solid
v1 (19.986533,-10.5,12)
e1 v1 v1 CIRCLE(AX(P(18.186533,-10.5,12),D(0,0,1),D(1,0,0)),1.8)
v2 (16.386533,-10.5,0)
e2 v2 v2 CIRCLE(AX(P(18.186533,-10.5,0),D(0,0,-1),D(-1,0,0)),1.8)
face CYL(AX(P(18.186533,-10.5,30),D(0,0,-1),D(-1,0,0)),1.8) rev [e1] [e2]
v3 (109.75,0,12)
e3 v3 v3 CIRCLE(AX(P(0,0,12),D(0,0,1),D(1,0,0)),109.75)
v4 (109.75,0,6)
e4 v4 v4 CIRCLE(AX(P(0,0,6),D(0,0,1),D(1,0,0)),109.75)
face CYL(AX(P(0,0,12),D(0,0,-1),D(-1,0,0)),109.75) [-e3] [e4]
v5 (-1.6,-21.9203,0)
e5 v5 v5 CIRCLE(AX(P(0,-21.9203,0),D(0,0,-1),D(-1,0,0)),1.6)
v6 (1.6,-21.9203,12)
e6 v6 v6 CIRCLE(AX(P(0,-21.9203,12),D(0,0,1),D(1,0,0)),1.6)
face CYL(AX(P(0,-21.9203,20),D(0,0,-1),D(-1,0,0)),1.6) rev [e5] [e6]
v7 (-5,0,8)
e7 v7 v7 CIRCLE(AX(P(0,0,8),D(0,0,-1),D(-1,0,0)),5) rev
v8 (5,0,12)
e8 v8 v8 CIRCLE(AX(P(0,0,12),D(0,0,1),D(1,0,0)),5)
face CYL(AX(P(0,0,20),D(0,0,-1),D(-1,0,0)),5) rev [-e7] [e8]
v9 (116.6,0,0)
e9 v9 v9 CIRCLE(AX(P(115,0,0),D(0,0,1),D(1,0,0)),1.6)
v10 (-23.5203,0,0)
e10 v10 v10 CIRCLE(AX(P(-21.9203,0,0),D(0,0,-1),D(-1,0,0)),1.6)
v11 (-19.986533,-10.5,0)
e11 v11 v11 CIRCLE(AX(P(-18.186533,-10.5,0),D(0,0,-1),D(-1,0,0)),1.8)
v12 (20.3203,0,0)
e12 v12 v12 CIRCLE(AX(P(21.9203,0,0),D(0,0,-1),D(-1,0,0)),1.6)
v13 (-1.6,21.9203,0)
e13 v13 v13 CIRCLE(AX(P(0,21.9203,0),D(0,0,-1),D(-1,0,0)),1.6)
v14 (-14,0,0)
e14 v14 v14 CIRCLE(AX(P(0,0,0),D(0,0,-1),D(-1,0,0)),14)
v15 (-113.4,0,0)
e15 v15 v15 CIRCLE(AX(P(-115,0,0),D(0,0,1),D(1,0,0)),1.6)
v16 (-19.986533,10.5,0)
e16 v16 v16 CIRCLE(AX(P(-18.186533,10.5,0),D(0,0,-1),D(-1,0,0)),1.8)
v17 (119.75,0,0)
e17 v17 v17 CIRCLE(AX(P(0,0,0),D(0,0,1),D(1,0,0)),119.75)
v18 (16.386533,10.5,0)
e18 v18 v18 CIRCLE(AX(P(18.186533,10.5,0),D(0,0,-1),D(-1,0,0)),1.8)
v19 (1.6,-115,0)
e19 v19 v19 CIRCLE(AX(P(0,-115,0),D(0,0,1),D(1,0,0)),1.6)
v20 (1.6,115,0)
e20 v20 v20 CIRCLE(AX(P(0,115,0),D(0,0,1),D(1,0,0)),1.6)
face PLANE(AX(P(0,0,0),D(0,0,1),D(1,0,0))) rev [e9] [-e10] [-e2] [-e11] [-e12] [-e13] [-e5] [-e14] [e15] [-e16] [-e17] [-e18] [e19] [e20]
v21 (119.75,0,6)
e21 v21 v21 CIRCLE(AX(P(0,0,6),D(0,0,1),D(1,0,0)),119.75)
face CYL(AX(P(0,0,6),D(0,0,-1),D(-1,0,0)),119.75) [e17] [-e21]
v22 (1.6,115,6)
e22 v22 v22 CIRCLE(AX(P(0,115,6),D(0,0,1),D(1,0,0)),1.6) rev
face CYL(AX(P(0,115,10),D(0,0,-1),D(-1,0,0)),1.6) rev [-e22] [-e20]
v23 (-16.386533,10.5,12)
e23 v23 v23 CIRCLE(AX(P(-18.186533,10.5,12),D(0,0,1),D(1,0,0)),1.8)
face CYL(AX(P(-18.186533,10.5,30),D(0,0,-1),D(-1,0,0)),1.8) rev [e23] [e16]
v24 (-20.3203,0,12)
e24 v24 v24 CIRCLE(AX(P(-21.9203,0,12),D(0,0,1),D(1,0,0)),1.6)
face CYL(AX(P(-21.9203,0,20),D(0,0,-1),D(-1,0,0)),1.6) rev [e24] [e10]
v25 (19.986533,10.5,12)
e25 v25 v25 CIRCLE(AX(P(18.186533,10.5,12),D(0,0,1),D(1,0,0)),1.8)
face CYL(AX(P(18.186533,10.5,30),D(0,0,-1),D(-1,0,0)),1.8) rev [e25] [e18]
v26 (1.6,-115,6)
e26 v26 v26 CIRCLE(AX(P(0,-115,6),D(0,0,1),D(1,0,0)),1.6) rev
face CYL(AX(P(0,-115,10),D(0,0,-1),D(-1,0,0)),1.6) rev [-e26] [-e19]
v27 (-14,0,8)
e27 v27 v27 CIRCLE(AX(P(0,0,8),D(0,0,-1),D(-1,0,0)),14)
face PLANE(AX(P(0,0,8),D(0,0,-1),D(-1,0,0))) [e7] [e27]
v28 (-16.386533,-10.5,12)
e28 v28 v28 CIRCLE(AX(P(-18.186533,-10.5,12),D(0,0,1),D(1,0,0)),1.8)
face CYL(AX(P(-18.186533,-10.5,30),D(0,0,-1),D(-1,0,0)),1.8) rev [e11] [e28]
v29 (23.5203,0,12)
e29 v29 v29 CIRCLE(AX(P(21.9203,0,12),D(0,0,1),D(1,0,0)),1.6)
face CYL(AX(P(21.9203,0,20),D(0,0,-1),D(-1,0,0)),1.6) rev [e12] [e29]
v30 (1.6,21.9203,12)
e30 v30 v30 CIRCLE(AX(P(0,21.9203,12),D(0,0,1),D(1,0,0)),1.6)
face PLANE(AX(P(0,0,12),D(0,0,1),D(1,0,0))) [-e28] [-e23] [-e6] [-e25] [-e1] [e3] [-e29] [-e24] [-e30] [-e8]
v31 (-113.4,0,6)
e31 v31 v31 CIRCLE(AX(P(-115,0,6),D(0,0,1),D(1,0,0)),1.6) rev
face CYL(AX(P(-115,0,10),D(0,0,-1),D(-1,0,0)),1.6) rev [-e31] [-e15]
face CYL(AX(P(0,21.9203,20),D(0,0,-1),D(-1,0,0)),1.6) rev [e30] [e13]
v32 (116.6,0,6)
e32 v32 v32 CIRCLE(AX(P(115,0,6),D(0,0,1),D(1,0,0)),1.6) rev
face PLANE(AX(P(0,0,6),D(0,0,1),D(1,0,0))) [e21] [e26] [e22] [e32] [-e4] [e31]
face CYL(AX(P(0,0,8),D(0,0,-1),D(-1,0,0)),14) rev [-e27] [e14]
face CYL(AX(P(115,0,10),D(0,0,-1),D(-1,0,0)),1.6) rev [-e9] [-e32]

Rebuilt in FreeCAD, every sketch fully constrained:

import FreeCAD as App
import Part
import Sketcher

V = App.Vector

doc = App.newDocument("Part")
body = doc.addObject("PartDesign::Body", "Body")

# Sketch on XY plane
sketch1 = doc.addObject("Sketcher::SketchObject", "Sketch")
body.addObject(sketch1)
sketch1.AttachmentSupport = (doc.XY_Plane, [""])
sketch1.MapMode = "FlatFace"
sketch1.addGeometry(Part.Circle(V(0, 0, 0), V(0, 0, 1), 110), False)
sketch1.addConstraint([
    Sketcher.Constraint("Coincident", 0, 3, -1, 1),
    Sketcher.Constraint("Diameter", 0, 219.5),
])
pad1 = doc.addObject("PartDesign::Pad", "Pad")
body.addObject(pad1)
pad1.Profile = sketch1
pad1.Length = 12

# Sketch on XY plane
sketch2 = doc.addObject("Sketcher::SketchObject", "Sketch001")
body.addObject(sketch2)
sketch2.AttachmentSupport = (doc.XY_Plane, [""])
sketch2.MapMode = "FlatFace"
sketch2.addGeometry(Part.Circle(V(0, 0, 0), V(0, 0, 1), 120), False)
sketch2.addConstraint([
    Sketcher.Constraint("Coincident", 0, 3, -1, 1),
    Sketcher.Constraint("Diameter", 0, 239.5),
])
pad2 = doc.addObject("PartDesign::Pad", "Pad001")
body.addObject(pad2)
pad2.Profile = sketch2
pad2.Length = 6

# Sketch on XY plane
sketch3 = doc.addObject("Sketcher::SketchObject", "Sketch002")
body.addObject(sketch3)
sketch3.AttachmentSupport = (doc.XY_Plane, [""])
sketch3.MapMode = "FlatFace"
sketch3.addGeometry([
    Part.Circle(V(-115, 0, 0), V(0, 0, 1), 1.6),
    Part.Circle(V(115, 0, 0), V(0, 0, 1), 1.6),
    Part.Circle(V(0, -115, 0), V(0, 0, 1), 1.6),
    Part.Circle(V(0, 115, 0), V(0, 0, 1), 1.6),
], False)
sketch3.addConstraint([
    Sketcher.Constraint("Equal", 0, 1),
    Sketcher.Constraint("Equal", 1, 2),
    Sketcher.Constraint("Equal", 2, 3),
    Sketcher.Constraint("Symmetric", 0, 3, 1, 3, -1, 1),
    Sketcher.Constraint("Symmetric", 2, 3, 3, 3, -1, 1),
    Sketcher.Constraint("PointOnObject", 0, 3, -1),
    Sketcher.Constraint("PointOnObject", 2, 3, -2),
    Sketcher.Constraint("Diameter", 0, 3.2),
    Sketcher.Constraint("DistanceX", 0, 3, -1, 1, 115.0),
    Sketcher.Constraint("DistanceY", 2, 3, -1, 1, 115.0),
])
pocket1 = doc.addObject("PartDesign::Pocket", "Pocket")
body.addObject(pocket1)
pocket1.Profile = sketch3
pocket1.Length = 10
pocket1.Reversed = True

# Sketch on XY plane
sketch4 = doc.addObject("Sketcher::SketchObject", "Sketch003")
body.addObject(sketch4)
sketch4.AttachmentSupport = (doc.XY_Plane, [""])
sketch4.MapMode = "FlatFace"
sketch4.addGeometry(Part.Circle(V(0, -21.9, 0), V(0, 0, 1), 1.6), False)
sketch4.addConstraint([
    Sketcher.Constraint("PointOnObject", 0, 3, -2),
    Sketcher.Constraint("Diameter", 0, 3.2),
    Sketcher.Constraint("DistanceY", 0, 3, -1, 1, 21.9203),
])
pocket2 = doc.addObject("PartDesign::Pocket", "Pocket001")
body.addObject(pocket2)
pocket2.Profile = sketch4
pocket2.Length = 20
pocket2.Reversed = True

# Sketch on XY plane
sketch5 = doc.addObject("Sketcher::SketchObject", "Sketch004")
body.addObject(sketch5)
sketch5.AttachmentSupport = (doc.XY_Plane, [""])
sketch5.MapMode = "FlatFace"
sketch5.addGeometry([
    Part.Circle(V(21.9, 0, 0), V(0, 0, 1), 1.6),
    Part.Circle(V(0, 21.9, 0), V(0, 0, 1), 1.6),
    Part.Circle(V(-21.9, 0, 0), V(0, 0, 1), 1.6),
    Part.Circle(V(0, -21.9, 0), V(0, 0, 1), 1.6),
], False)
sketch5.addConstraint([
    Sketcher.Constraint("Equal", 0, 1),
    Sketcher.Constraint("Equal", 1, 2),
    Sketcher.Constraint("Equal", 2, 3),
    Sketcher.Constraint("Symmetric", 0, 3, 2, 3, -1, 1),
    Sketcher.Constraint("Symmetric", 1, 3, 3, 3, -1, 1),
    Sketcher.Constraint("PointOnObject", 0, 3, -1),
    Sketcher.Constraint("PointOnObject", 1, 3, -2),
    Sketcher.Constraint("Diameter", 0, 3.2),
    Sketcher.Constraint("DistanceX", -1, 1, 0, 3, 21.9203),
    Sketcher.Constraint("DistanceY", -1, 1, 1, 3, 21.9203),
])
pocket3 = doc.addObject("PartDesign::Pocket", "Pocket002")
body.addObject(pocket3)
pocket3.Profile = sketch5
pocket3.Length = 20
pocket3.Reversed = True

# Sketch on XY plane
sketch6 = doc.addObject("Sketcher::SketchObject", "Sketch005")
body.addObject(sketch6)
sketch6.AttachmentSupport = (doc.XY_Plane, [""])
sketch6.MapMode = "FlatFace"
sketch6.addGeometry(Part.Circle(V(0, 0, 0), V(0, 0, 1), 5), False)
sketch6.addConstraint([
    Sketcher.Constraint("Coincident", 0, 3, -1, 1),
    Sketcher.Constraint("Diameter", 0, 10.0),
])
pocket4 = doc.addObject("PartDesign::Pocket", "Pocket003")
body.addObject(pocket4)
pocket4.Profile = sketch6
pocket4.Length = 20
pocket4.Reversed = True

# Sketch on XY plane
sketch7 = doc.addObject("Sketcher::SketchObject", "Sketch006")
body.addObject(sketch7)
sketch7.AttachmentSupport = (doc.XY_Plane, [""])
sketch7.MapMode = "FlatFace"
sketch7.addGeometry([
    Part.Circle(V(18.2, 10.5, 0), V(0, 0, 1), 1.8),
    Part.Circle(V(-18.2, 10.5, 0), V(0, 0, 1), 1.8),
    Part.Circle(V(-18.2, -10.5, 0), V(0, 0, 1), 1.8),
    Part.Circle(V(18.2, -10.5, 0), V(0, 0, 1), 1.8),
], False)
sketch7.addConstraint([
    Sketcher.Constraint("Equal", 0, 1),
    Sketcher.Constraint("Equal", 1, 2),
    Sketcher.Constraint("Equal", 2, 3),
    Sketcher.Constraint("Symmetric", 0, 3, 2, 3, -1, 1),
    Sketcher.Constraint("Symmetric", 1, 3, 3, 3, -1, 1),
    Sketcher.Constraint("Symmetric", 0, 3, 1, 3, -2),
    Sketcher.Constraint("Diameter", 0, 3.6),
    Sketcher.Constraint("DistanceY", 2, 3, 1, 3, 21.0),
    Sketcher.Constraint("DistanceX", -1, 1, 0, 3, 18.186533),
])
pocket5 = doc.addObject("PartDesign::Pocket", "Pocket004")
body.addObject(pocket5)
pocket5.Profile = sketch7
pocket5.Length = 30
pocket5.Reversed = True

# Sketch on XY plane
sketch8 = doc.addObject("Sketcher::SketchObject", "Sketch007")
body.addObject(sketch8)
sketch8.AttachmentSupport = (doc.XY_Plane, [""])
sketch8.MapMode = "FlatFace"
sketch8.addGeometry(Part.Circle(V(0, 0, 0), V(0, 0, 1), 14), False)
sketch8.addConstraint([
    Sketcher.Constraint("Coincident", 0, 3, -1, 1),
    Sketcher.Constraint("Diameter", 0, 28.0),
])
pocket6 = doc.addObject("PartDesign::Pocket", "Pocket005")
body.addObject(pocket6)
pocket6.Profile = sketch8
pocket6.Length = 8
pocket6.Reversed = True

doc.recompute()
